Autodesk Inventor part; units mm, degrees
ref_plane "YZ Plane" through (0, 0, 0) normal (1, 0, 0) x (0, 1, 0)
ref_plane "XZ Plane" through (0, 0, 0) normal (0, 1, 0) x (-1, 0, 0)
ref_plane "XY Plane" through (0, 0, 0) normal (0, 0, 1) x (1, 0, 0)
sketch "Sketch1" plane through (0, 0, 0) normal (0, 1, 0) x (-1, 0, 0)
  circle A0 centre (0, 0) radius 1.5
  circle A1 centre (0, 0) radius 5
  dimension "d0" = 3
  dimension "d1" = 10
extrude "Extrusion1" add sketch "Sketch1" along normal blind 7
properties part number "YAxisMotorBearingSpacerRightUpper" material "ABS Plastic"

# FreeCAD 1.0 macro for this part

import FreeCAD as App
import Part
import Sketcher
from FreeCAD import Vector

doc = App.newDocument("Part")
body = doc.addObject("PartDesign::Body", "Body")

# Sketch on XZ plane
sketch1 = body.newObject("Sketcher::SketchObject", "Sketch")
sketch1.AttachmentSupport = (doc.getObject("XZ_Plane"), [""])
sketch1.MapMode = "FlatFace"
sketch1.addGeometry(Part.Circle(Vector(0, 0, 0), Vector(0, 0, 1), 5), False)
sketch1.addGeometry(Part.Circle(Vector(0, 0, 0), Vector(0, 0, 1), 1.5), False)
sketch1.addConstraint(Sketcher.Constraint("Coincident", 0, 3, -1, 1))
sketch1.addConstraint(Sketcher.Constraint("Coincident", 1, 3, -1, 1))
sketch1.addConstraint(Sketcher.Constraint("Diameter", 0, 10.0))
sketch1.addConstraint(Sketcher.Constraint("Diameter", 1, 3.0))
pad1 = body.newObject("PartDesign::Pad", "Pad")
pad1.Profile = sketch1
pad1.Length = 7
pad1.Reversed = True

doc.recompute()
